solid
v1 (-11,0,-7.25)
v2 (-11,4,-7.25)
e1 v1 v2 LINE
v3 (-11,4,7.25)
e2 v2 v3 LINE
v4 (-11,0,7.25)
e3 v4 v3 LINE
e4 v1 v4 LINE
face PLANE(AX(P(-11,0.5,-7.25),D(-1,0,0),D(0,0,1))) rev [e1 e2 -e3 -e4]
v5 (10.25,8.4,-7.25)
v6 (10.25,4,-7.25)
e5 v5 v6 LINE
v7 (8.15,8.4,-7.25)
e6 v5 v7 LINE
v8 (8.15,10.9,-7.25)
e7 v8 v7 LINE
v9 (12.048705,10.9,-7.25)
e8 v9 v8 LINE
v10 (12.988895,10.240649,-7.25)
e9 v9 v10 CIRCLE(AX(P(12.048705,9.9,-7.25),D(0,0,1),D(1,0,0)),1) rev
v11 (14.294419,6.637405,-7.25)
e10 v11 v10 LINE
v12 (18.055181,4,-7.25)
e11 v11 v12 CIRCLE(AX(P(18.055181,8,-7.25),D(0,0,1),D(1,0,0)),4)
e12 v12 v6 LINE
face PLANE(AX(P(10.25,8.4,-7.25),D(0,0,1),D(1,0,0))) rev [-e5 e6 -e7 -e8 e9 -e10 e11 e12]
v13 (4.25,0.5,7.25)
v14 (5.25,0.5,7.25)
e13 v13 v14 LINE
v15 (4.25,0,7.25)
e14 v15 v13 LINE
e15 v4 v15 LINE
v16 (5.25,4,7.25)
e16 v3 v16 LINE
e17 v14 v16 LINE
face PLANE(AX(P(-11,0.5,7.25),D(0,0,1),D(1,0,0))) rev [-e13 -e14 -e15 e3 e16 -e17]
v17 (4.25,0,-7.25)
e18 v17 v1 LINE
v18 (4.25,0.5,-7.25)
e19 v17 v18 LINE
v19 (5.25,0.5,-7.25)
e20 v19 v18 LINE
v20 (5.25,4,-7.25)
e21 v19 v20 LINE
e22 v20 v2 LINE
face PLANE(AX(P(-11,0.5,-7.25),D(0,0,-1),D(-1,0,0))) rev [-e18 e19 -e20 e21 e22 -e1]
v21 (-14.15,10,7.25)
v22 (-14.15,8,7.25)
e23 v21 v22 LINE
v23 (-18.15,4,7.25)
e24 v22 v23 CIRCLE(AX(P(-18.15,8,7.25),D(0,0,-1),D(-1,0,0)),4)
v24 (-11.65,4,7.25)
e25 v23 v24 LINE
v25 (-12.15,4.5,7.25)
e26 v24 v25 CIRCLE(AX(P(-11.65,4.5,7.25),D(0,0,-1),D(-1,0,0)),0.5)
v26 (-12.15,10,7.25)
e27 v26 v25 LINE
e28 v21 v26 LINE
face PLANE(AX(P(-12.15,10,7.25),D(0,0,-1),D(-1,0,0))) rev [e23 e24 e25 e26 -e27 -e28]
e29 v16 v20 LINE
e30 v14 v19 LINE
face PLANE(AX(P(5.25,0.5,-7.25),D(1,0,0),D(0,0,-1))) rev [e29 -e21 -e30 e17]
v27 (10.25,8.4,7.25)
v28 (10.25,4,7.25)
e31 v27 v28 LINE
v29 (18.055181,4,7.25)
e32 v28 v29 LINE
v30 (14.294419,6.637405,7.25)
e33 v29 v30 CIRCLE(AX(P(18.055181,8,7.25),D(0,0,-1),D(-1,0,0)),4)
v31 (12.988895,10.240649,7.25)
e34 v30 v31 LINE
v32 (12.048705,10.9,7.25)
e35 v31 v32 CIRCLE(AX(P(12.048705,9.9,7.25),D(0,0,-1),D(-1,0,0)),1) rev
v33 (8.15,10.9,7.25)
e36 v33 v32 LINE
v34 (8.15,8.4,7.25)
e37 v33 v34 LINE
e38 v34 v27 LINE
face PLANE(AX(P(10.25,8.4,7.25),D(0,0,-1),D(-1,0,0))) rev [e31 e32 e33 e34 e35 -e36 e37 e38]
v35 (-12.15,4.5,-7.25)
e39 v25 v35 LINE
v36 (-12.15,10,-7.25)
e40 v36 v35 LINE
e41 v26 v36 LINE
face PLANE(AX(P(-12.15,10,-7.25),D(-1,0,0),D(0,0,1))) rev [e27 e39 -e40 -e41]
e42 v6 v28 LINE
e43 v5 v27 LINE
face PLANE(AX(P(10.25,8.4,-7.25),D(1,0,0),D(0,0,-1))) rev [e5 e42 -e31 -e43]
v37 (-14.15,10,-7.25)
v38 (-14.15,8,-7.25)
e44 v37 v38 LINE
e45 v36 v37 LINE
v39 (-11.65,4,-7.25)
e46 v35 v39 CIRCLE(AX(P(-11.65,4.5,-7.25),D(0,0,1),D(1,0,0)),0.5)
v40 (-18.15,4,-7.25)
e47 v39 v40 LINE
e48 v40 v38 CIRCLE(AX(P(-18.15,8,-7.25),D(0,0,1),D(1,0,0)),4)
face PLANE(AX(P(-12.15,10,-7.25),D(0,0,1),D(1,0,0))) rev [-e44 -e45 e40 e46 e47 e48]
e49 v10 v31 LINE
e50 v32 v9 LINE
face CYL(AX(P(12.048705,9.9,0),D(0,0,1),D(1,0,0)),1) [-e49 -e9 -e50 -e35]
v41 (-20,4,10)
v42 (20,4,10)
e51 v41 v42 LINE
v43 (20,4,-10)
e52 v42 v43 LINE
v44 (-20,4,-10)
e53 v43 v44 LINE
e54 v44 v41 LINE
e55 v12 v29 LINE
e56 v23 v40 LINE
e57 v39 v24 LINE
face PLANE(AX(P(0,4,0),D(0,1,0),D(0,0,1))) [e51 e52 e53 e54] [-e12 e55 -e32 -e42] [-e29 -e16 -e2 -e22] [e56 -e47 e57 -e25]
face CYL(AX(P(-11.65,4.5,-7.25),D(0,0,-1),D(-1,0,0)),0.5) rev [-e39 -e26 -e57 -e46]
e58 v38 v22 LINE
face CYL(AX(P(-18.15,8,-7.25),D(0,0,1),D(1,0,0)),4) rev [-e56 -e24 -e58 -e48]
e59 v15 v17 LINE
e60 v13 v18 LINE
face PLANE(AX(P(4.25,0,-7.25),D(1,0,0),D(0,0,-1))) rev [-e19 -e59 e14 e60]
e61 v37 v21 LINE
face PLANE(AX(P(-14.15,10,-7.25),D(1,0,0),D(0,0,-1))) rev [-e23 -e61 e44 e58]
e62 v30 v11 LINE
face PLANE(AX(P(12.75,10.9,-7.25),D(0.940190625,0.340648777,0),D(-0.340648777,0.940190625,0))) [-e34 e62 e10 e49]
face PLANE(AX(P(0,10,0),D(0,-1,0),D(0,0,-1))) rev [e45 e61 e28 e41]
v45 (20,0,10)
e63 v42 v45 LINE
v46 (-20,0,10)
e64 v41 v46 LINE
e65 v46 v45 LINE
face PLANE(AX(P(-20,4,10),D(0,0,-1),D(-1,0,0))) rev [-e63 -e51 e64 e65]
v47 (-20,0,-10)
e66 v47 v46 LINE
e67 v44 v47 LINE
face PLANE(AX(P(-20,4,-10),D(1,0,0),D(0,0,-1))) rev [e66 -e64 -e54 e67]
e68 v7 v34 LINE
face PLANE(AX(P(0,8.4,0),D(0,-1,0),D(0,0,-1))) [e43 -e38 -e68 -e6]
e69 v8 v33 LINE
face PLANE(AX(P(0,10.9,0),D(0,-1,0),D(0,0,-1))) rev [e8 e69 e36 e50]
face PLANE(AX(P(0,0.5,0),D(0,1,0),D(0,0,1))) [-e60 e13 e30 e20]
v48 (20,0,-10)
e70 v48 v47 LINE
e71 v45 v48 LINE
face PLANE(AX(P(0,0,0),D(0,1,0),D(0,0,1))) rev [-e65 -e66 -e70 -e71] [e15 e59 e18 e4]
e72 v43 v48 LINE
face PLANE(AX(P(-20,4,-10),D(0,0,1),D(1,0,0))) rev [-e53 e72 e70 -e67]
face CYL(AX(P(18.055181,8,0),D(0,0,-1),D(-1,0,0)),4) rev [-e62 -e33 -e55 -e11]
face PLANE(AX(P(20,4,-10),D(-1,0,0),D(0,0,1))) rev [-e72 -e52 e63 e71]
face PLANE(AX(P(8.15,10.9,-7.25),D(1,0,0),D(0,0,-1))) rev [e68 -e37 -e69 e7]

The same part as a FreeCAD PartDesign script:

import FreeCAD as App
import Part
import Sketcher
Q = App.Units.Quantity


def edges_at(feature, points):
    """Names of the edges that pass closest to the given points."""
    edges = feature.Shape.Edges
    near = lambda p: min(range(len(edges)), key=lambda i: edges[i].distToShape(Part.Vertex(*p))[0])
    return sorted({f"Edge{near(p) + 1}" for p in points})

doc = App.newDocument("Part")
params = doc.addObject("Spreadsheet::Sheet", "Params")
for row, (alias, value) in enumerate([
    ("sketch1_width", "40 mm"),
    ("sketch1_height", "20 mm"),
    ("pad1_length", "4 mm"),
    ("sketch2_height", "14.5 mm"),
    ("sketch2_width", "16.25 mm"),
    ("pocket1_length", "3.5 mm"),
    ("sketch3_height", "14.5 mm"),
    ("sketch3_width", "15.25 mm"),
    ("pocket2_length", "0.5 mm"),
    ("sketch4_width", "2 mm"),
    ("sketch4_height", "14.5 mm"),
    ("pad2_length", "6 mm"),
    ("fillet_radius", "4 mm"),
    ("fillet2_radius", "0.5 mm"),
    ("sketch5_width", "2.5 mm"),
    ("sketch5_height", "14.5 mm"),
    ("pad3_length", "4.4 mm"),
    ("sketch6_width", "4.6 mm"),
    ("sketch6_height", "14.5 mm"),
    ("pad4_length", "2.5 mm"),
    ("sketch7_width", "2.5 mm"),
    ("sketch7_height", "6.9 mm"),
    ("pad5_length", "14.5 mm"),
    ("fillet3_radius", "1 mm"),
    ("fillet4_radius", "4 mm"),
], start=1):
    params.set(f"A{row}", alias)
    params.set(f"B{row}", "=" + value)
    params.setAlias(f"B{row}", alias)

body = doc.addObject("PartDesign::Body", "Body")

sketch1 = body.newObject("Sketcher::SketchObject", "Sketch")
sketch1.AttachmentSupport = (doc.getObject("XZ_Plane"), [""])
sketch1.MapMode = "FlatFace"
sketch1.addGeometry(Part.LineSegment(App.Vector(-20, -10, 0), App.Vector(-20, 10, 0)), False)
sketch1.addGeometry(Part.LineSegment(App.Vector(-20, 10, 0), App.Vector(20, 10, 0)), False)
sketch1.addGeometry(Part.LineSegment(App.Vector(20, 10, 0), App.Vector(20, -10, 0)), False)
sketch1.addGeometry(Part.LineSegment(App.Vector(20, -10, 0), App.Vector(-20, -10, 0)), False)
sketch1.addConstraint(Sketcher.Constraint("Coincident", 0, 2, 1, 1))
sketch1.addConstraint(Sketcher.Constraint("Coincident", 1, 2, 2, 1))
sketch1.addConstraint(Sketcher.Constraint("Coincident", 2, 2, 3, 1))
sketch1.addConstraint(Sketcher.Constraint("Coincident", 3, 2, 0, 1))
sketch1.addConstraint(Sketcher.Constraint("Vertical", 0))
sketch1.addConstraint(Sketcher.Constraint("Horizontal", 1))
sketch1.addConstraint(Sketcher.Constraint("Vertical", 2))
sketch1.addConstraint(Sketcher.Constraint("Horizontal", 3))
sketch1.addConstraint(Sketcher.Constraint("Symmetric", 0, 2, 2, 2, -1, 1))
sketch1.addConstraint(Sketcher.Constraint("DistanceX", 1, 1, 1, 2, Q("40 mm")))
sketch1.addConstraint(Sketcher.Constraint("DistanceY", 0, 1, 0, 2, Q("20 mm")))
sketch1.setExpression("Constraints[9]", "Params.sketch1_width")
sketch1.setExpression("Constraints[10]", "Params.sketch1_height")
pad1 = body.newObject("PartDesign::Pad", "Pad")
pad1.Profile = sketch1
pad1.setExpression("Length", "Params.pad1_length")
pad1.Reversed = True

sketch2 = body.newObject("Sketcher::SketchObject", "Sketch001")
sketch2.AttachmentSupport = (doc.getObject("XZ_Plane"), [""])
sketch2.MapMode = "FlatFace"
sketch2.AttachmentOffset = App.Placement(App.Vector(0, 0, -4), App.Rotation())
sketch2.addGeometry(Part.LineSegment(App.Vector(-11, -7, 0), App.Vector(-11, 7, 0)), False)
sketch2.addGeometry(Part.LineSegment(App.Vector(-11, 7, 0), App.Vector(5, 7, 0)), False)
sketch2.addGeometry(Part.LineSegment(App.Vector(5, 7, 0), App.Vector(5, -7, 0)), False)
sketch2.addGeometry(Part.LineSegment(App.Vector(5, -7, 0), App.Vector(-11, -7, 0)), False)
sketch2.addConstraint(Sketcher.Constraint("Coincident", 0, 2, 1, 1))
sketch2.addConstraint(Sketcher.Constraint("Coincident", 1, 2, 2, 1))
sketch2.addConstraint(Sketcher.Constraint("Coincident", 2, 2, 3, 1))
sketch2.addConstraint(Sketcher.Constraint("Coincident", 3, 2, 0, 1))
sketch2.addConstraint(Sketcher.Constraint("Vertical", 0))
sketch2.addConstraint(Sketcher.Constraint("Horizontal", 1))
sketch2.addConstraint(Sketcher.Constraint("Vertical", 2))
sketch2.addConstraint(Sketcher.Constraint("Horizontal", 3))
sketch2.addConstraint(Sketcher.Constraint("DistanceY", 0, 1, 0, 2, Q("14.5 mm")))
sketch2.addConstraint(Sketcher.Constraint("DistanceX", 0, 2, -1, 1, Q("11 mm")))
sketch2.addConstraint(Sketcher.Constraint("DistanceX", 1, 1, 1, 2, Q("16.25 mm")))
sketch2.addConstraint(Sketcher.Constraint("DistanceY", -1, 1, 0, 2, Q("7.25 mm")))
sketch2.setExpression("Constraints[8]", "Params.sketch2_height")
sketch2.setExpression("Constraints[10]", "Params.sketch2_width")
pocket1 = body.newObject("PartDesign::Pocket", "Pocket")
pocket1.Profile = sketch2
pocket1.setExpression("Length", "Params.pocket1_length")
pocket1.Reversed = True

sketch3 = body.newObject("Sketcher::SketchObject", "Sketch002")
sketch3.AttachmentSupport = (doc.getObject("XZ_Plane"), [""])
sketch3.MapMode = "FlatFace"
sketch3.AttachmentOffset = App.Placement(App.Vector(0, 0, -0.5), App.Rotation())
sketch3.addGeometry(Part.LineSegment(App.Vector(-11, -7, 0), App.Vector(-11, 7, 0)), False)
sketch3.addGeometry(Part.LineSegment(App.Vector(-11, 7, 0), App.Vector(4, 7, 0)), False)
sketch3.addGeometry(Part.LineSegment(App.Vector(4, 7, 0), App.Vector(4, -7, 0)), False)
sketch3.addGeometry(Part.LineSegment(App.Vector(4, -7, 0), App.Vector(-11, -7, 0)), False)
sketch3.addConstraint(Sketcher.Constraint("Coincident", 0, 2, 1, 1))
sketch3.addConstraint(Sketcher.Constraint("Coincident", 1, 2, 2, 1))
sketch3.addConstraint(Sketcher.Constraint("Coincident", 2, 2, 3, 1))
sketch3.addConstraint(Sketcher.Constraint("Coincident", 3, 2, 0, 1))
sketch3.addConstraint(Sketcher.Constraint("Vertical", 0))
sketch3.addConstraint(Sketcher.Constraint("Horizontal", 1))
sketch3.addConstraint(Sketcher.Constraint("Vertical", 2))
sketch3.addConstraint(Sketcher.Constraint("Horizontal", 3))
sketch3.addConstraint(Sketcher.Constraint("DistanceY", 0, 1, 0, 2, Q("14.5 mm")))
sketch3.addConstraint(Sketcher.Constraint("DistanceX", 0, 2, -1, 1, Q("11 mm")))
sketch3.addConstraint(Sketcher.Constraint("DistanceX", 1, 1, 1, 2, Q("15.25 mm")))
sketch3.addConstraint(Sketcher.Constraint("DistanceY", -1, 1, 0, 2, Q("7.25 mm")))
sketch3.setExpression("Constraints[8]", "Params.sketch3_height")
sketch3.setExpression("Constraints[10]", "Params.sketch3_width")
pocket2 = body.newObject("PartDesign::Pocket", "Pocket001")
pocket2.Profile = sketch3
pocket2.setExpression("Length", "Params.pocket2_length")
pocket2.Reversed = True

sketch4 = body.newObject("Sketcher::SketchObject", "Sketch003")
sketch4.AttachmentSupport = (doc.getObject("XZ_Plane"), [""])
sketch4.MapMode = "FlatFace"
sketch4.AttachmentOffset = App.Placement(App.Vector(0, 0, -4), App.Rotation())
sketch4.addGeometry(Part.LineSegment(App.Vector(-14.2, -7.2, 0), App.Vector(-14.2, 7.2, 0)), False)
sketch4.addGeometry(Part.LineSegment(App.Vector(-14.2, 7.2, 0), App.Vector(-12.2, 7.2, 0)), False)
sketch4.addGeometry(Part.LineSegment(App.Vector(-12.2, 7.2, 0), App.Vector(-12.2, -7.2, 0)), False)
sketch4.addGeometry(Part.LineSegment(App.Vector(-12.2, -7.2, 0), App.Vector(-14.2, -7.2, 0)), False)
sketch4.addConstraint(Sketcher.Constraint("Coincident", 0, 2, 1, 1))
sketch4.addConstraint(Sketcher.Constraint("Coincident", 1, 2, 2, 1))
sketch4.addConstraint(Sketcher.Constraint("Coincident", 2, 2, 3, 1))
sketch4.addConstraint(Sketcher.Constraint("Coincident", 3, 2, 0, 1))
sketch4.addConstraint(Sketcher.Constraint("Vertical", 0))
sketch4.addConstraint(Sketcher.Constraint("Horizontal", 1))
sketch4.addConstraint(Sketcher.Constraint("Vertical", 2))
sketch4.addConstraint(Sketcher.Constraint("Horizontal", 3))
sketch4.addConstraint(Sketcher.Constraint("DistanceX", 1, 1, 1, 2, Q("2 mm")))
sketch4.addConstraint(Sketcher.Constraint("DistanceY", 0, 1, 0, 2, Q("14.5 mm")))
sketch4.addConstraint(Sketcher.Constraint("DistanceX", 0, 2, -1, 1, Q("14.15 mm")))
sketch4.addConstraint(Sketcher.Constraint("DistanceY", -1, 1, 0, 2, Q("7.25 mm")))
sketch4.setExpression("Constraints[8]", "Params.sketch4_width")
sketch4.setExpression("Constraints[9]", "Params.sketch4_height")
pad2 = body.newObject("PartDesign::Pad", "Pad001")
pad2.Profile = sketch4
pad2.setExpression("Length", "Params.pad2_length")
pad2.Reversed = True
doc.recompute()

fillet = body.newObject("PartDesign::Fillet", "Fillet")
fillet.Base = (pad2, edges_at(pad2, [(-14.15, 4, 0)]))
fillet.setExpression("Radius", "Params.fillet_radius")
doc.recompute()

fillet2 = body.newObject("PartDesign::Fillet", "Fillet001")
fillet2.Base = (fillet, edges_at(fillet, [(-12.15, 4, 0)]))
fillet2.setExpression("Radius", "Params.fillet2_radius")

sketch5 = body.newObject("Sketcher::SketchObject", "Sketch004")
sketch5.AttachmentSupport = (doc.getObject("XZ_Plane"), [""])
sketch5.MapMode = "FlatFace"
sketch5.AttachmentOffset = App.Placement(App.Vector(0, 0, -4), App.Rotation())
sketch5.addGeometry(Part.LineSegment(App.Vector(10.2, -7.2, 0), App.Vector(10.2, 7.2, 0)), False)
sketch5.addGeometry(Part.LineSegment(App.Vector(10.2, 7.2, 0), App.Vector(12.8, 7.2, 0)), False)
sketch5.addGeometry(Part.LineSegment(App.Vector(12.8, 7.2, 0), App.Vector(12.8, -7.2, 0)), False)
sketch5.addGeometry(Part.LineSegment(App.Vector(12.8, -7.2, 0), App.Vector(10.2, -7.2, 0)), False)
sketch5.addConstraint(Sketcher.Constraint("Coincident", 0, 2, 1, 1))
sketch5.addConstraint(Sketcher.Constraint("Coincident", 1, 2, 2, 1))
sketch5.addConstraint(Sketcher.Constraint("Coincident", 2, 2, 3, 1))
sketch5.addConstraint(Sketcher.Constraint("Coincident", 3, 2, 0, 1))
sketch5.addConstraint(Sketcher.Constraint("Vertical", 0))
sketch5.addConstraint(Sketcher.Constraint("Horizontal", 1))
sketch5.addConstraint(Sketcher.Constraint("Vertical", 2))
sketch5.addConstraint(Sketcher.Constraint("Horizontal", 3))
sketch5.addConstraint(Sketcher.Constraint("DistanceX", 1, 1, 1, 2, Q("2.5 mm")))
sketch5.addConstraint(Sketcher.Constraint("DistanceY", 0, 1, 0, 2, Q("14.5 mm")))
sketch5.addConstraint(Sketcher.Constraint("DistanceX", -1, 1, 0, 2, Q("10.25 mm")))
sketch5.addConstraint(Sketcher.Constraint("DistanceY", -1, 1, 0, 2, Q("7.25 mm")))
sketch5.setExpression("Constraints[8]", "Params.sketch5_width")
sketch5.setExpression("Constraints[9]", "Params.sketch5_height")
pad3 = body.newObject("PartDesign::Pad", "Pad002")
pad3.Profile = sketch5
pad3.setExpression("Length", "Params.pad3_length")
pad3.Reversed = True

sketch6 = body.newObject("Sketcher::SketchObject", "Sketch005")
sketch6.AttachmentSupport = (doc.getObject("XZ_Plane"), [""])
sketch6.MapMode = "FlatFace"
sketch6.AttachmentOffset = App.Placement(App.Vector(0, 0, -8.4), App.Rotation())
sketch6.addGeometry(Part.LineSegment(App.Vector(8.2, -7.2, 0), App.Vector(8.2, 7.2, 0)), False)
sketch6.addGeometry(Part.LineSegment(App.Vector(8.2, 7.2, 0), App.Vector(12.8, 7.2, 0)), False)
sketch6.addGeometry(Part.LineSegment(App.Vector(12.8, 7.2, 0), App.Vector(12.8, -7.2, 0)), False)
sketch6.addGeometry(Part.LineSegment(App.Vector(12.8, -7.2, 0), App.Vector(8.2, -7.2, 0)), False)
sketch6.addConstraint(Sketcher.Constraint("Coincident", 0, 2, 1, 1))
sketch6.addConstraint(Sketcher.Constraint("Coincident", 1, 2, 2, 1))
sketch6.addConstraint(Sketcher.Constraint("Coincident", 2, 2, 3, 1))
sketch6.addConstraint(Sketcher.Constraint("Coincident", 3, 2, 0, 1))
sketch6.addConstraint(Sketcher.Constraint("Vertical", 0))
sketch6.addConstraint(Sketcher.Constraint("Horizontal", 1))
sketch6.addConstraint(Sketcher.Constraint("Vertical", 2))
sketch6.addConstraint(Sketcher.Constraint("Horizontal", 3))
sketch6.addConstraint(Sketcher.Constraint("DistanceX", 1, 1, 1, 2, Q("4.6 mm")))
sketch6.addConstraint(Sketcher.Constraint("DistanceY", 0, 1, 0, 2, Q("14.5 mm")))
sketch6.addConstraint(Sketcher.Constraint("DistanceX", -1, 1, 0, 2, Q("8.15 mm")))
sketch6.addConstraint(Sketcher.Constraint("DistanceY", -1, 1, 0, 2, Q("7.25 mm")))
sketch6.setExpression("Constraints[8]", "Params.sketch6_width")
sketch6.setExpression("Constraints[9]", "Params.sketch6_height")
pad4 = body.newObject("PartDesign::Pad", "Pad003")
pad4.Profile = sketch6
pad4.setExpression("Length", "Params.pad4_length")
pad4.Reversed = True

sketch7 = body.newObject("Sketcher::SketchObject", "Sketch006")
sketch7.AttachmentSupport = (doc.getObject("XY_Plane"), [""])
sketch7.MapMode = "FlatFace"
sketch7.AttachmentOffset = App.Placement(App.Vector(0, 0, 7.25), App.Rotation())
sketch7.addGeometry(Part.LineSegment(App.Vector(12.8, 4, 0), App.Vector(15.2, 4, 0)), False)
sketch7.addGeometry(Part.LineSegment(App.Vector(15.2, 4, 0), App.Vector(12.8, 10.9, 0)), False)
sketch7.addGeometry(Part.LineSegment(App.Vector(12.8, 10.9, 0), App.Vector(12.8, 4, 0)), False)
sketch7.addConstraint(Sketcher.Constraint("Coincident", 0, 2, 1, 1))
sketch7.addConstraint(Sketcher.Constraint("Coincident", 1, 2, 2, 1))
sketch7.addConstraint(Sketcher.Constraint("Coincident", 2, 2, 0, 1))
sketch7.addConstraint(Sketcher.Constraint("Horizontal", 0))
sketch7.addConstraint(Sketcher.Constraint("Vertical", 2))
sketch7.addConstraint(Sketcher.Constraint("DistanceX", 0, 1, 0, 2, Q("2.5 mm")))
sketch7.addConstraint(Sketcher.Constraint("DistanceY", 2, 2, 2, 1, Q("6.9 mm")))
sketch7.addConstraint(Sketcher.Constraint("DistanceY", -1, 1, 0, 2, Q("4 mm")))
sketch7.addConstraint(Sketcher.Constraint("DistanceX", -1, 1, 0, 2, Q("15.25 mm")))
sketch7.setExpression("Constraints[5]", "Params.sketch7_width")
sketch7.setExpression("Constraints[6]", "Params.sketch7_height")
pad5 = body.newObject("PartDesign::Pad", "Pad004")
pad5.Profile = sketch7
pad5.setExpression("Length", "Params.pad5_length")
pad5.Reversed = True
doc.recompute()

fillet3 = body.newObject("PartDesign::Fillet", "Fillet002")
fillet3.Base = (pad5, edges_at(pad5, [(12.75, 10.9, 0)]))
fillet3.setExpression("Radius", "Params.fillet3_radius")
doc.recompute()

fillet4 = body.newObject("PartDesign::Fillet", "Fillet003")
fillet4.Base = (fillet3, edges_at(fillet3, [(15.25, 4, 0)]))
fillet4.setExpression("Radius", "Params.fillet4_radius")

doc.recompute()
